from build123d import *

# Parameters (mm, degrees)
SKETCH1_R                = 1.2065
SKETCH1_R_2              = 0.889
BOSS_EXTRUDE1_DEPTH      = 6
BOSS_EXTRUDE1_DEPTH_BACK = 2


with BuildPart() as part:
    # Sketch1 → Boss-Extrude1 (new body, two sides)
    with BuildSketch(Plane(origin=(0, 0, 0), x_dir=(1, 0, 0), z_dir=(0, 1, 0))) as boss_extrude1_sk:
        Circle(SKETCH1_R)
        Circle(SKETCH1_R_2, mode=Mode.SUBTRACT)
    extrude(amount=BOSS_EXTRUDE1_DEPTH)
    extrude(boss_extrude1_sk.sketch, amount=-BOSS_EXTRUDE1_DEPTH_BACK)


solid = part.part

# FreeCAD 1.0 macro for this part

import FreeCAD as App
import Part
import Sketcher

V = App.Vector
Q = App.Units.Quantity

doc = App.newDocument("Part")
body = doc.addObject("PartDesign::Body", "Body")

# Sketch on XZ plane
sketch1 = body.newObject("Sketcher::SketchObject", "Sketch")
sketch1.AttachmentSupport = (doc.getObject("XZ_Plane"), [""])
sketch1.MapMode = "FlatFace"
sketch1.addGeometry(Part.Circle(V(0, 0, 0), V(0, 0, 1), 1.2), False)
sketch1.addGeometry(Part.Circle(V(0, 0, 0), V(0, 0, 1), 0.9), False)
sketch1.addConstraint(Sketcher.Constraint("Coincident", 0, 3, -1, 1))
sketch1.addConstraint(Sketcher.Constraint("Coincident", 1, 3, -1, 1))
sketch1.addConstraint(Sketcher.Constraint("Diameter", 1, Q("0.07 in")))
sketch1.addConstraint(Sketcher.Constraint("Diameter", 0, Q("0.095 in")))
pad1 = body.newObject("PartDesign::Pad", "Pad")
pad1.Profile = sketch1
pad1.Type = "TwoLengths"
pad1.Length = 6
pad1.Length2 = 2
pad1.Reversed = True

doc.recompute()
